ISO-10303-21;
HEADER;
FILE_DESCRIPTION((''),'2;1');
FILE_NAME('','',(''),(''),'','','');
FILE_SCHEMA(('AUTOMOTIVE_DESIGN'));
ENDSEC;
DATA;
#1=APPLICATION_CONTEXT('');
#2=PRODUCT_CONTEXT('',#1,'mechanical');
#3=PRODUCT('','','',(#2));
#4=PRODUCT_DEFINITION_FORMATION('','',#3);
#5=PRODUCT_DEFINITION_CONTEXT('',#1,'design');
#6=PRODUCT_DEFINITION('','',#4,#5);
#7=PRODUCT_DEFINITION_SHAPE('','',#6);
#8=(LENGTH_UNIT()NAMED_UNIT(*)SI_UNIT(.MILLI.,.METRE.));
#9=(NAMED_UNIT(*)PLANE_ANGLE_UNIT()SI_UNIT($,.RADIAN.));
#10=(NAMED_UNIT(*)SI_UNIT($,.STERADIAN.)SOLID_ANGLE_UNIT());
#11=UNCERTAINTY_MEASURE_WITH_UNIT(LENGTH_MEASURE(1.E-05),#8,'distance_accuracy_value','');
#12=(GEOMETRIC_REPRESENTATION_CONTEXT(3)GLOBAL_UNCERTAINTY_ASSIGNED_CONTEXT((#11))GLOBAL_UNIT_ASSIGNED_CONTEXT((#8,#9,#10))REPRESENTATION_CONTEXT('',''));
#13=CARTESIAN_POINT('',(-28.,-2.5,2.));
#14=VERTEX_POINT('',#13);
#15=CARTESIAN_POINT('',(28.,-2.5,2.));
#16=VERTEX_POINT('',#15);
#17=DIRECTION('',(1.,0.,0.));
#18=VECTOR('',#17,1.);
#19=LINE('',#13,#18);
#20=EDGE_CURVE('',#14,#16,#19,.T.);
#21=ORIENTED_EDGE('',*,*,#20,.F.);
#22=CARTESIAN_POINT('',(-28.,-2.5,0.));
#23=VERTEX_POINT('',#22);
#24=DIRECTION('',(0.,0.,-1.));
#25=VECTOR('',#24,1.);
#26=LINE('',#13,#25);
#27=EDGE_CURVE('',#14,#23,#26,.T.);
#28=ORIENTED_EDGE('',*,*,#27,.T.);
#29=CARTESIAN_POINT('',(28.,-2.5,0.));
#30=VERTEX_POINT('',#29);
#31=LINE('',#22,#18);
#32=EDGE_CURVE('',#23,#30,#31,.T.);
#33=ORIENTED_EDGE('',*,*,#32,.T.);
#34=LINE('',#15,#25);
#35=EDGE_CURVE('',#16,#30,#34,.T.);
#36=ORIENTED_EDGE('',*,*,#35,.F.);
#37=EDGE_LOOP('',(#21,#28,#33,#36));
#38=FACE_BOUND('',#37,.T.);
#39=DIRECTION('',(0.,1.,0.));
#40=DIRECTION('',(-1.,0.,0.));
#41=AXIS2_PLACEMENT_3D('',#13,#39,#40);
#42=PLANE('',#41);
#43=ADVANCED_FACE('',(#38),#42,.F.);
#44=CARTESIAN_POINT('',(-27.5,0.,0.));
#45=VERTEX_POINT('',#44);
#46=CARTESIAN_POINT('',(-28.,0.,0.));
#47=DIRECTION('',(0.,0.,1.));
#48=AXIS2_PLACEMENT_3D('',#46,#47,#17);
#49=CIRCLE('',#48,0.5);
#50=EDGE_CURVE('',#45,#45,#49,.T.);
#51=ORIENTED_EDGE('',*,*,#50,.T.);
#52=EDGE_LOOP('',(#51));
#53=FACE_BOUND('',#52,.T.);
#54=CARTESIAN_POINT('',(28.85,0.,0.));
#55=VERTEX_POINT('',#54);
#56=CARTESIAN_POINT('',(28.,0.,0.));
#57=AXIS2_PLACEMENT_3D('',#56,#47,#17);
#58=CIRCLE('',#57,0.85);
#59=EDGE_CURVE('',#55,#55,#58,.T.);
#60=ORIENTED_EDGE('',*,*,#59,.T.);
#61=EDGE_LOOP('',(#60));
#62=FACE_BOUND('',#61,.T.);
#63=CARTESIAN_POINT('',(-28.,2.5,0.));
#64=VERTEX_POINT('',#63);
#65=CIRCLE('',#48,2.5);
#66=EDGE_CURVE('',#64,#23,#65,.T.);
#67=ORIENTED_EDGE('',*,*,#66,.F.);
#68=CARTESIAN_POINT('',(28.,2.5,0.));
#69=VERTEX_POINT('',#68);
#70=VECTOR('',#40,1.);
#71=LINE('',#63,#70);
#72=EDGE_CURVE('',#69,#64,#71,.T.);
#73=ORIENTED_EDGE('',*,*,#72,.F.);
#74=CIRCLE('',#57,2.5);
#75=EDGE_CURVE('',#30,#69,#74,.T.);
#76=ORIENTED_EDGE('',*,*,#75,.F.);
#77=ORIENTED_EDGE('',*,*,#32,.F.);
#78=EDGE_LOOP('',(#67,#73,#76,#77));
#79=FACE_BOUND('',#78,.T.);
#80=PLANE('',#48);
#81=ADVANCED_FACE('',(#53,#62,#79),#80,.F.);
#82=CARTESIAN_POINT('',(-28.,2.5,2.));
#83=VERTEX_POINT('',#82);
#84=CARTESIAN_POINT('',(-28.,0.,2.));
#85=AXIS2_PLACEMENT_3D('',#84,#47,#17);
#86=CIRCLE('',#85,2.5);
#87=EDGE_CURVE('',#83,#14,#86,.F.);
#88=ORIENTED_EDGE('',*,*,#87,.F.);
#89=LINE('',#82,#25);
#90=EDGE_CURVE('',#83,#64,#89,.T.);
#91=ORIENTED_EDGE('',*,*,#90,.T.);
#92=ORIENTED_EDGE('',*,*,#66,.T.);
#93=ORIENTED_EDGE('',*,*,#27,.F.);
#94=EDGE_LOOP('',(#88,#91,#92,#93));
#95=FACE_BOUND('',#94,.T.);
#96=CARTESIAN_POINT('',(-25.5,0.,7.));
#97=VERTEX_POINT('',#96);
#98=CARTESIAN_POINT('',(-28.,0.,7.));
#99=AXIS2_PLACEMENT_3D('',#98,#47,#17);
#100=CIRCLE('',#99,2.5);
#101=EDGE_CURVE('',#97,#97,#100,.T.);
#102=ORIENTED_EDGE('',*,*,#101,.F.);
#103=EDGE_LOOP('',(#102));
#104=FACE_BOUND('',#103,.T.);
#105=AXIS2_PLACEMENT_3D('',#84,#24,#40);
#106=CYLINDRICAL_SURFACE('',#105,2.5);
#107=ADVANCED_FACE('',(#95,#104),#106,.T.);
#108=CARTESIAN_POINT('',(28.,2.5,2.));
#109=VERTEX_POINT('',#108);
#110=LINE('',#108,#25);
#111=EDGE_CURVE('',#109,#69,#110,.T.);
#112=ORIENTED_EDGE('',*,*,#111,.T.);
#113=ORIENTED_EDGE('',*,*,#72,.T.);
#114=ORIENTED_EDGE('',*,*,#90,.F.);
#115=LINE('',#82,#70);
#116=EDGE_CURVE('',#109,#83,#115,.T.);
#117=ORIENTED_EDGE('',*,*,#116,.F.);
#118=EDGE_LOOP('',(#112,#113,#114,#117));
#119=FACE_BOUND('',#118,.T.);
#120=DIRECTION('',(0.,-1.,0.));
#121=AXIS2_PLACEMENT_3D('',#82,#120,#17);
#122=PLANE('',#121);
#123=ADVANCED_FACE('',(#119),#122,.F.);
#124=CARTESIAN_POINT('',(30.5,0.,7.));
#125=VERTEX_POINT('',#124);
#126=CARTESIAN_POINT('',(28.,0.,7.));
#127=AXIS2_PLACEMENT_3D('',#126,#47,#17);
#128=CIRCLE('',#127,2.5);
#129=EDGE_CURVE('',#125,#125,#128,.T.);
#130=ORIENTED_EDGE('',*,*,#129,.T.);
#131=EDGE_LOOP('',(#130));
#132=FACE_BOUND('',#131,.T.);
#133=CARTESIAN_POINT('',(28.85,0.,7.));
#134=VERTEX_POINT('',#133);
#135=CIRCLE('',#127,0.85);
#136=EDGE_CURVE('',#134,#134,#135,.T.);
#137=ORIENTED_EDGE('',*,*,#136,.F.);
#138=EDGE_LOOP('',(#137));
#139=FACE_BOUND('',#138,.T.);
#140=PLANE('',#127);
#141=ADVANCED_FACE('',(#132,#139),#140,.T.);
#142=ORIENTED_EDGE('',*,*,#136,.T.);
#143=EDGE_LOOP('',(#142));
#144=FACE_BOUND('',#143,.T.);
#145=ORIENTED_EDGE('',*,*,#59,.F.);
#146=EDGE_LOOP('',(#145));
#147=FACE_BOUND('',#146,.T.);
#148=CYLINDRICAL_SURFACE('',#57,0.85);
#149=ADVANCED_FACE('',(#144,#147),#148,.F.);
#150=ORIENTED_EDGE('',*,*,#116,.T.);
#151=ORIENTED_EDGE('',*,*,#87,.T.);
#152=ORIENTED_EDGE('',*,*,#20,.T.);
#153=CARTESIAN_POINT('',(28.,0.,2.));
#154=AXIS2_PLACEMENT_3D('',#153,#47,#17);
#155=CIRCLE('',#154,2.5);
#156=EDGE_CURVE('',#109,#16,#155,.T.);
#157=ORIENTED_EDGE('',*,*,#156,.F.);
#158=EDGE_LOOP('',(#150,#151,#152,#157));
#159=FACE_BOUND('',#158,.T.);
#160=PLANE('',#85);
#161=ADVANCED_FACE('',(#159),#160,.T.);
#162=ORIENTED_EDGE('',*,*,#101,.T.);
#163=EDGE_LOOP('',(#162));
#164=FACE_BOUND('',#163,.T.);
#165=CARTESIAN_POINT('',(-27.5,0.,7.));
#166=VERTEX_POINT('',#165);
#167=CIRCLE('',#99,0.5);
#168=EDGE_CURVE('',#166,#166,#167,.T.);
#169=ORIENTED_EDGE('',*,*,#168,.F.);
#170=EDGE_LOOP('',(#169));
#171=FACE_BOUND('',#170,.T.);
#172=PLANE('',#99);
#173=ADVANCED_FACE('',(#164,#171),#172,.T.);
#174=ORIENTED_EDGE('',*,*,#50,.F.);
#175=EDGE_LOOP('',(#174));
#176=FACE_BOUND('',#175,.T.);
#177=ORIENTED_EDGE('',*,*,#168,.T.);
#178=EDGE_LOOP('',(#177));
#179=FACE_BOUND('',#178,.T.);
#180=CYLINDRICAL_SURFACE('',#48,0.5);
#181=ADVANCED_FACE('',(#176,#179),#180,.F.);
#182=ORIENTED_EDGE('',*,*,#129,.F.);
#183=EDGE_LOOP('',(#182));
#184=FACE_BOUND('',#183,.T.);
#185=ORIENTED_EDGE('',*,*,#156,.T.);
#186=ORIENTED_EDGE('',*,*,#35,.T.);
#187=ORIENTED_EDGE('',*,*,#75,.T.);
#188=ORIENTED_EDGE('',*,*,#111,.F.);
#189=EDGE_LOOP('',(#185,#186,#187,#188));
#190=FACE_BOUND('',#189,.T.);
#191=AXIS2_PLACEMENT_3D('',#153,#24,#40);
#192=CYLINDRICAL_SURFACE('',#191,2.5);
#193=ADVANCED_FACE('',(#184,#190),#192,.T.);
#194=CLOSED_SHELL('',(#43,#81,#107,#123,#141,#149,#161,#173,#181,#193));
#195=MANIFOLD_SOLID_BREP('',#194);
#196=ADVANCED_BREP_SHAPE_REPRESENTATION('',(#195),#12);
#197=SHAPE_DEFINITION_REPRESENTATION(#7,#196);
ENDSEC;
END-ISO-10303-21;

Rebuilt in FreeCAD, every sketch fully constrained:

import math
import FreeCAD as App
import Part
import Sketcher
from FreeCAD import Vector

doc = App.newDocument("Part")
body = doc.addObject("PartDesign::Body", "Body")

# Sketch on XY plane
sketch1 = body.newObject("Sketcher::SketchObject", "Sketch")
sketch1.AttachmentSupport = (doc.getObject("XY_Plane"), [""])
sketch1.MapMode = "FlatFace"
sketch1.addGeometry([
    Part.LineSegment(Vector(28, 2.5, 0), Vector(-28, 2.5, 0)),
    Part.ArcOfCircle(Part.Circle(Vector(-28, 0, 0), Vector(0, 0, 1), 2.5), math.radians(90), math.radians(270)),
    Part.LineSegment(Vector(-28, -2.5, 0), Vector(28, -2.5, 0)),
    Part.ArcOfCircle(Part.Circle(Vector(28, 0, 0), Vector(0, 0, 1), 2.5), math.radians(-90), math.radians(90)),
], False)
sketch1.addConstraint([
    Sketcher.Constraint("Tangent", 0, 2, 1, 1),
    Sketcher.Constraint("Tangent", 1, 2, 2, 1),
    Sketcher.Constraint("Tangent", 2, 2, 3, 1),
    Sketcher.Constraint("Tangent", 3, 2, 0, 1),
    Sketcher.Constraint("Horizontal", 0),
    Sketcher.Constraint("Horizontal", 2),
    Sketcher.Constraint("Symmetric", 1, 3, 3, 3, -1, 1),
    Sketcher.Constraint("Radius", 1, 2.5),
    Sketcher.Constraint("DistanceX", 0, 2, 0, 1, 56.0),
])
pad1 = body.newObject("PartDesign::Pad", "Pad")
pad1.Profile = sketch1
pad1.Length = 2

# Sketch on XY plane
sketch2 = body.newObject("Sketcher::SketchObject", "Sketch001")
sketch2.AttachmentSupport = (doc.getObject("XY_Plane"), [""])
sketch2.MapMode = "FlatFace"
sketch2.AttachmentOffset = App.Placement(Vector(0, 0, 2), App.Rotation())
sketch2.addGeometry(Part.Circle(Vector(28, 0, 0), Vector(0, 0, 1), 2.5), False)
sketch2.addConstraint([
    Sketcher.Constraint("PointOnObject", 0, 3, -1),
    Sketcher.Constraint("Diameter", 0, 5.0),
    Sketcher.Constraint("DistanceX", -1, 1, 0, 3, 28.0),
])
pad2 = body.newObject("PartDesign::Pad", "Pad001")
pad2.Profile = sketch2
pad2.Length = 5

# Sketch on XY plane
sketch3 = body.newObject("Sketcher::SketchObject", "Sketch002")
sketch3.AttachmentSupport = (doc.getObject("XY_Plane"), [""])
sketch3.MapMode = "FlatFace"
sketch3.AttachmentOffset = App.Placement(Vector(0, 0, 2), App.Rotation())
sketch3.addGeometry(Part.Circle(Vector(-28, 0, 0), Vector(0, 0, 1), 2.5), False)
sketch3.addConstraint([
    Sketcher.Constraint("PointOnObject", 0, 3, -1),
    Sketcher.Constraint("Diameter", 0, 5.0),
    Sketcher.Constraint("DistanceX", 0, 3, -1, 1, 28.0),
])
pad3 = body.newObject("PartDesign::Pad", "Pad002")
pad3.Profile = sketch3
pad3.Length = 5

# Sketch on XY plane
sketch4 = body.newObject("Sketcher::SketchObject", "Sketch003")
sketch4.AttachmentSupport = (doc.getObject("XY_Plane"), [""])
sketch4.MapMode = "FlatFace"
sketch4.AttachmentOffset = App.Placement(Vector(0, 0, 7), App.Rotation())
sketch4.addGeometry(Part.Circle(Vector(-28, 0, 0), Vector(0, 0, 1), 0.5), False)
sketch4.addConstraint([
    Sketcher.Constraint("PointOnObject", 0, 3, -1),
    Sketcher.Constraint("Diameter", 0, 1.0),
    Sketcher.Constraint("DistanceX", 0, 3, -1, 1, 28.0),
])
pocket1 = body.newObject("PartDesign::Pocket", "Pocket")
pocket1.Profile = sketch4
pocket1.Type = "ThroughAll"

# Sketch on XY plane
sketch5 = body.newObject("Sketcher::SketchObject", "Sketch004")
sketch5.AttachmentSupport = (doc.getObject("XY_Plane"), [""])
sketch5.MapMode = "FlatFace"
sketch5.AttachmentOffset = App.Placement(Vector(0, 0, 7), App.Rotation())
sketch5.addGeometry(Part.Circle(Vector(28, 0, 0), Vector(0, 0, 1), 0.8), False)
sketch5.addConstraint([
    Sketcher.Constraint("PointOnObject", 0, 3, -1),
    Sketcher.Constraint("Diameter", 0, 1.7),
    Sketcher.Constraint("DistanceX", -1, 1, 0, 3, 28.0),
])
pocket2 = body.newObject("PartDesign::Pocket", "Pocket001")
pocket2.Profile = sketch5
pocket2.Type = "ThroughAll"

doc.recompute()
